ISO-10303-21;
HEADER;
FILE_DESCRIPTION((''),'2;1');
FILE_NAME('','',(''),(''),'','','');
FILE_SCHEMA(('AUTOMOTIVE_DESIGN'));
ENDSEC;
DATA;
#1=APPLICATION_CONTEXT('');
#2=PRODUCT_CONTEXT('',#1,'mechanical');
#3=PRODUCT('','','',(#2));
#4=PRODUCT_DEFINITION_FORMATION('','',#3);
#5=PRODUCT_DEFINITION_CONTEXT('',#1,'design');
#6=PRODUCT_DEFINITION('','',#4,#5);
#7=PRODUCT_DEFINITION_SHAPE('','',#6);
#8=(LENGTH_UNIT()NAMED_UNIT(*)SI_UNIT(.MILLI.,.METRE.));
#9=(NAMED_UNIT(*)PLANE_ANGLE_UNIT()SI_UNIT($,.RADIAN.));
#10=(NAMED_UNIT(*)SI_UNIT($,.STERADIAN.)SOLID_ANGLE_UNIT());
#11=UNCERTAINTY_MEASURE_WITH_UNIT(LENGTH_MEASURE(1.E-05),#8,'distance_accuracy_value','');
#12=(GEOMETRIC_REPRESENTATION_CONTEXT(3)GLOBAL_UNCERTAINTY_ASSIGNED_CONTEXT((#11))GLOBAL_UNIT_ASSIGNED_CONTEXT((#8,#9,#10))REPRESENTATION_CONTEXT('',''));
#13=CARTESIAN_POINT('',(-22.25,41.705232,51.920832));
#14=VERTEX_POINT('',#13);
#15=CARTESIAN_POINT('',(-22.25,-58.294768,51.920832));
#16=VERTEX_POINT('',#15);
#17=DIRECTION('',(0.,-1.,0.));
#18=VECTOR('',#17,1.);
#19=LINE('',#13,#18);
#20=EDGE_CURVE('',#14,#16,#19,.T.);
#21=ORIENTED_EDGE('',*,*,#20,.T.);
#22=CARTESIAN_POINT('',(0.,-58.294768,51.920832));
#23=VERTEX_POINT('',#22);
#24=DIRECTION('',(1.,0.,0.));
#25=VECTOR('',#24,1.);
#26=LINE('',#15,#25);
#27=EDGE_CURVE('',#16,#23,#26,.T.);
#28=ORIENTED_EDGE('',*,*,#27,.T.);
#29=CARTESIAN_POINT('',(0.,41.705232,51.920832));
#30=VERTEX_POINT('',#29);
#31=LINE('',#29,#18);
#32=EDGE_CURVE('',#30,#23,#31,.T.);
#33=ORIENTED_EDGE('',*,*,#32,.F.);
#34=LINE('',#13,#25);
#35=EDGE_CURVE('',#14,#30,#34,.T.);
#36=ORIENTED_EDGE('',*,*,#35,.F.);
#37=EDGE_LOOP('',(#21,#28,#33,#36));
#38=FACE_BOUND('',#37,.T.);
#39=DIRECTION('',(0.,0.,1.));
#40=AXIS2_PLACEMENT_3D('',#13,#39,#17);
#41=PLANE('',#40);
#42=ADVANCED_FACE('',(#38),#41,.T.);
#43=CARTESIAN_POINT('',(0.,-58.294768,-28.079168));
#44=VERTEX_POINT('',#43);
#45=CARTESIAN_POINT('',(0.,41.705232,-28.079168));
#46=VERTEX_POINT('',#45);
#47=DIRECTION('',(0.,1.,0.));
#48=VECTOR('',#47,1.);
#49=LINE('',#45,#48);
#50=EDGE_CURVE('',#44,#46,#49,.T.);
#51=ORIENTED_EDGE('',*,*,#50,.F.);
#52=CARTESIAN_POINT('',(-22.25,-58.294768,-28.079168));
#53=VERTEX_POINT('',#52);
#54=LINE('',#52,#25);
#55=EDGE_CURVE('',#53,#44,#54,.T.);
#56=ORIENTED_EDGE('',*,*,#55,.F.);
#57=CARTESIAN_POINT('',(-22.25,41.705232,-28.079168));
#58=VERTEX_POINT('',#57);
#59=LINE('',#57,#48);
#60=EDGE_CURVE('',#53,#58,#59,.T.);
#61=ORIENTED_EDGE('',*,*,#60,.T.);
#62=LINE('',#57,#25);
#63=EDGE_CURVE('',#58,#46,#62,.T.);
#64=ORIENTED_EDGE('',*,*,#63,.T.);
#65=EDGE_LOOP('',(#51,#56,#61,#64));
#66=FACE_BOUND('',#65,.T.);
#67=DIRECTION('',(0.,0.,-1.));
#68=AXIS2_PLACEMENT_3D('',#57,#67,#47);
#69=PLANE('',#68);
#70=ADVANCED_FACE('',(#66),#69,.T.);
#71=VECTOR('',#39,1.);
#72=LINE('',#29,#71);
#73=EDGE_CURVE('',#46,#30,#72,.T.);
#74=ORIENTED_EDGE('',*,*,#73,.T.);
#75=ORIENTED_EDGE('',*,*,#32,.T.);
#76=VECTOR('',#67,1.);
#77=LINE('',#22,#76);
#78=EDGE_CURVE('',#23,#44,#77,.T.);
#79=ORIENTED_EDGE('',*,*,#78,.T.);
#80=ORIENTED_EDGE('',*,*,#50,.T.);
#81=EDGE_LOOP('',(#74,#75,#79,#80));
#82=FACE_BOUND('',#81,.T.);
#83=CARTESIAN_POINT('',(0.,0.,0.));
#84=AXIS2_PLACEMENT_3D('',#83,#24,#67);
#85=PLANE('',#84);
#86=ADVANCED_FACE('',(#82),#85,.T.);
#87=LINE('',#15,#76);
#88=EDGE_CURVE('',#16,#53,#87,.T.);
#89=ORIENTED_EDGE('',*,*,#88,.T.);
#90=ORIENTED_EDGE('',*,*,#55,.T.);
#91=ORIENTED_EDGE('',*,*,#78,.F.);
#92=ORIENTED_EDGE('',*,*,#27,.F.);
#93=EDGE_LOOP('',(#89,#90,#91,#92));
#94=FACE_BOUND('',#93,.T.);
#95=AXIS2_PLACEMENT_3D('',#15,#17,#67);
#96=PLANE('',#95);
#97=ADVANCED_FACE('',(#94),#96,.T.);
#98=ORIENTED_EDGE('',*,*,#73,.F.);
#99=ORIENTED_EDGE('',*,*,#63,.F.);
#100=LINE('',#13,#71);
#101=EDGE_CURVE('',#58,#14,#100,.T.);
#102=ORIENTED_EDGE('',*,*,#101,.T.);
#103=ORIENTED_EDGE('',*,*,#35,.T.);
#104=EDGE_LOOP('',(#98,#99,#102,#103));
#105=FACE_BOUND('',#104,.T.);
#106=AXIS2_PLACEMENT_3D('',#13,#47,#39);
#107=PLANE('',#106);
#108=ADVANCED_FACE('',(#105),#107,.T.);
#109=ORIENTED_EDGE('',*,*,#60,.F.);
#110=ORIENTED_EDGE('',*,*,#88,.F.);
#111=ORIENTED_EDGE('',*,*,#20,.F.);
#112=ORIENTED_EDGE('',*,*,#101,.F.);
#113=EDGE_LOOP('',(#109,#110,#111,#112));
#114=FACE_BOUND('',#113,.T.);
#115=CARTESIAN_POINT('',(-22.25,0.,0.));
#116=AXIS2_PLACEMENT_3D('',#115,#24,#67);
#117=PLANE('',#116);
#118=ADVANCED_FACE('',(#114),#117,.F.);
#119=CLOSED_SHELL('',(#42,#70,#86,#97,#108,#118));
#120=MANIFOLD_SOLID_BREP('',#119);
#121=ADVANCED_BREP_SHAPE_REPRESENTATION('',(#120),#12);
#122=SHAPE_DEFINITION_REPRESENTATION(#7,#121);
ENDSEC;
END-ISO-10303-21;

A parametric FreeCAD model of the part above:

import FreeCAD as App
import Part
import Sketcher

V = App.Vector
Q = App.Units.Quantity


def add_polygon(sketch, points):
    """Adds a closed chain of lines whose ends are joined by coincident constraints."""
    first, n = sketch.GeometryCount, len(points)
    for a, b in zip(points, points[1:] + points[:1]):
        sketch.addGeometry(Part.LineSegment(App.Vector(*a, 0), App.Vector(*b, 0)), False)
    for i in range(n):
        sketch.addConstraint(Sketcher.Constraint("Coincident", first + i, 2, first + (i + 1) % n, 1))

doc = App.newDocument("Part")
body = doc.addObject("PartDesign::Body", "Body")

# Sketch on YZ plane
sketch1 = doc.addObject("Sketcher::SketchObject", "Sketch")
body.addObject(sketch1)
sketch1.AttachmentSupport = (doc.YZ_Plane, [""])
sketch1.MapMode = "FlatFace"
add_polygon(sketch1, [(42, 52), (-58, 52), (-58, -28), (42, -28)])  # lines 0-3
sketch1.addConstraint([
    Sketcher.Constraint("Horizontal", 0),
    Sketcher.Constraint("Vertical", 1),
    Sketcher.Constraint("Horizontal", 2),
    Sketcher.Constraint("Vertical", 3),
    Sketcher.Constraint("DistanceX", 0, 2, 0, 1, Q("100 mm")),
    Sketcher.Constraint("DistanceY", 1, 2, 1, 1, Q("80 mm")),
    Sketcher.Constraint("DistanceY", -1, 1, 0, 2, Q("51.920832 mm")),
    Sketcher.Constraint("DistanceX", 0, 2, -1, 1, Q("58.294768 mm")),
])
pad1 = doc.addObject("PartDesign::Pad", "Pad")
body.addObject(pad1)
pad1.Profile = sketch1
pad1.Length = 22.25
pad1.Reversed = True

doc.recompute()
